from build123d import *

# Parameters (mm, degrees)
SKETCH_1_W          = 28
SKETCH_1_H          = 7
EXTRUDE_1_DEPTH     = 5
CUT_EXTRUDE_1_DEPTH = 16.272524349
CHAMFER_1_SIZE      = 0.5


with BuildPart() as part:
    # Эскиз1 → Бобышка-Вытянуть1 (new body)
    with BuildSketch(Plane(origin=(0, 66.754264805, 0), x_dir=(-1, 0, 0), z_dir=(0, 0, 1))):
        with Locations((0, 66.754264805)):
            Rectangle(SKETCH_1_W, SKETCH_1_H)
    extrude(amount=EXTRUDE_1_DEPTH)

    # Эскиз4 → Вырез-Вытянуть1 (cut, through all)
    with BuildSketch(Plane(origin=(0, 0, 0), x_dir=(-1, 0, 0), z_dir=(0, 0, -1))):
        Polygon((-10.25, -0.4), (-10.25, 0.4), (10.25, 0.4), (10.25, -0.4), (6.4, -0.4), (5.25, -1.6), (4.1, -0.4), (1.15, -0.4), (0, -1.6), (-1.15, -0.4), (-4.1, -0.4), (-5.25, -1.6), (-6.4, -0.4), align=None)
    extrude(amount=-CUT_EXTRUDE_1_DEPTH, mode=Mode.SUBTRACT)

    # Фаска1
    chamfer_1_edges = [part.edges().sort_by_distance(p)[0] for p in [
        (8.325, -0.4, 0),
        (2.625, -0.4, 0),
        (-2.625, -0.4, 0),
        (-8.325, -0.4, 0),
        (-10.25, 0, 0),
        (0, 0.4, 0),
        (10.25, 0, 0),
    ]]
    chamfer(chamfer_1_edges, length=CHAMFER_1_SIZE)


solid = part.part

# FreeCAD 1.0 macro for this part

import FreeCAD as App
import Part
import Sketcher


def edges_at(feature, points):
    """Names of the edges that pass closest to the given points."""
    edges = feature.Shape.Edges
    near = lambda p: min(range(len(edges)), key=lambda i: edges[i].distToShape(Part.Vertex(*p))[0])
    return sorted({f"Edge{near(p) + 1}" for p in points})


def add_polygon(sketch, points):
    """Adds a closed chain of lines whose ends are joined by coincident constraints."""
    first, n = sketch.GeometryCount, len(points)
    for a, b in zip(points, points[1:] + points[:1]):
        sketch.addGeometry(Part.LineSegment(App.Vector(*a, 0), App.Vector(*b, 0)), False)
    for i in range(n):
        sketch.addConstraint(Sketcher.Constraint("Coincident", first + i, 2, first + (i + 1) % n, 1))

doc = App.newDocument("Part")
body = doc.addObject("PartDesign::Body", "Body")

# Sketch on XY plane
sketch1 = doc.addObject("Sketcher::SketchObject", "Sketch")
body.addObject(sketch1)
sketch1.AttachmentSupport = (doc.XY_Plane, [""])
sketch1.MapMode = "FlatFace"
add_polygon(sketch1, [(14, -4), (14, 4), (-14, 4), (-14, -4)])  # lines 0-3
sketch1.addConstraint([
    Sketcher.Constraint("Vertical", 0),
    Sketcher.Constraint("Horizontal", 1),
    Sketcher.Constraint("Vertical", 2),
    Sketcher.Constraint("Horizontal", 3),
    Sketcher.Constraint("Symmetric", 0, 2, 2, 2, -1, 1),
    Sketcher.Constraint("DistanceX", 1, 2, 1, 1, 28.0),
    Sketcher.Constraint("DistanceY", 0, 1, 0, 2, 7.0),
])
pad1 = doc.addObject("PartDesign::Pad", "Pad")
body.addObject(pad1)
pad1.Profile = sketch1
pad1.Length = 5

# Sketch on XY plane
sketch2 = doc.addObject("Sketcher::SketchObject", "Sketch001")
body.addObject(sketch2)
sketch2.AttachmentSupport = (doc.XY_Plane, [""])
sketch2.MapMode = "FlatFace"
add_polygon(sketch2, [(10.2, 0.4), (10.2, -0.4), (6.4, -0.4), (5.2, -1.6), (4.1, -0.4), (1.1, -0.4), (0, -1.6), (-1.1, -0.4), (-4.1, -0.4), (-5.2, -1.6), (-6.4, -0.4), (-10.2, -0.4), (-10.2, 0.4)])  # lines 0-12
sketch2.addConstraint([
    Sketcher.Constraint("Vertical", 0),
    Sketcher.Constraint("Horizontal", 1),
    Sketcher.Constraint("Horizontal", 4),
    Sketcher.Constraint("Horizontal", 7),
    Sketcher.Constraint("Horizontal", 10),
    Sketcher.Constraint("Vertical", 11),
    Sketcher.Constraint("Horizontal", 12),
    Sketcher.Constraint("Symmetric", 0, 2, 11, 2, -1, 1),
    Sketcher.Constraint("Symmetric", 4, 2, 6, 2, -2),
    Sketcher.Constraint("Symmetric", 2, 2, 8, 2, -2),
    Sketcher.Constraint("Symmetric", 1, 2, 9, 2, -2),
    Sketcher.Constraint("PointOnObject", 5, 2, -2),
    Sketcher.Constraint("Parallel", 2, 5),
    Sketcher.Constraint("Parallel", 3, 6),
    Sketcher.Constraint("Parallel", 5, 8),
    Sketcher.Constraint("Horizontal", 1, 2, 3, 2),
    Sketcher.Constraint("Horizontal", 2, 2, 5, 2),
    Sketcher.Constraint("DistanceX", 12, 1, 12, 2, 20.5),
    Sketcher.Constraint("DistanceY", 0, 2, 0, 1, 0.8),
    Sketcher.Constraint("DistanceX", 2, 2, 0, 2, 5.0),
    Sketcher.Constraint("DistanceY", 8, 2, 11, 2, 2.0),
    Sketcher.Constraint("DistanceX", 1, 2, 1, 1, 3.85),
])
pocket1 = doc.addObject("PartDesign::Pocket", "Pocket")
body.addObject(pocket1)
pocket1.Profile = sketch2
pocket1.Type = "ThroughAll"
pocket1.Reversed = True
doc.recompute()

chamfer = doc.addObject("PartDesign::Chamfer", "Chamfer")
body.addObject(chamfer)
chamfer.Base = (pocket1, edges_at(pocket1, [
    (8.325, -0.4, 0),
    (2.625, -0.4, 0),
    (-2.625, -0.4, 0),
    (-8.325, -0.4, 0),
    (-10.25, 0, 0),
    (0, 0.4, 0),
    (10.25, 0, 0),
]))
chamfer.Size = 0.5

doc.recompute()
